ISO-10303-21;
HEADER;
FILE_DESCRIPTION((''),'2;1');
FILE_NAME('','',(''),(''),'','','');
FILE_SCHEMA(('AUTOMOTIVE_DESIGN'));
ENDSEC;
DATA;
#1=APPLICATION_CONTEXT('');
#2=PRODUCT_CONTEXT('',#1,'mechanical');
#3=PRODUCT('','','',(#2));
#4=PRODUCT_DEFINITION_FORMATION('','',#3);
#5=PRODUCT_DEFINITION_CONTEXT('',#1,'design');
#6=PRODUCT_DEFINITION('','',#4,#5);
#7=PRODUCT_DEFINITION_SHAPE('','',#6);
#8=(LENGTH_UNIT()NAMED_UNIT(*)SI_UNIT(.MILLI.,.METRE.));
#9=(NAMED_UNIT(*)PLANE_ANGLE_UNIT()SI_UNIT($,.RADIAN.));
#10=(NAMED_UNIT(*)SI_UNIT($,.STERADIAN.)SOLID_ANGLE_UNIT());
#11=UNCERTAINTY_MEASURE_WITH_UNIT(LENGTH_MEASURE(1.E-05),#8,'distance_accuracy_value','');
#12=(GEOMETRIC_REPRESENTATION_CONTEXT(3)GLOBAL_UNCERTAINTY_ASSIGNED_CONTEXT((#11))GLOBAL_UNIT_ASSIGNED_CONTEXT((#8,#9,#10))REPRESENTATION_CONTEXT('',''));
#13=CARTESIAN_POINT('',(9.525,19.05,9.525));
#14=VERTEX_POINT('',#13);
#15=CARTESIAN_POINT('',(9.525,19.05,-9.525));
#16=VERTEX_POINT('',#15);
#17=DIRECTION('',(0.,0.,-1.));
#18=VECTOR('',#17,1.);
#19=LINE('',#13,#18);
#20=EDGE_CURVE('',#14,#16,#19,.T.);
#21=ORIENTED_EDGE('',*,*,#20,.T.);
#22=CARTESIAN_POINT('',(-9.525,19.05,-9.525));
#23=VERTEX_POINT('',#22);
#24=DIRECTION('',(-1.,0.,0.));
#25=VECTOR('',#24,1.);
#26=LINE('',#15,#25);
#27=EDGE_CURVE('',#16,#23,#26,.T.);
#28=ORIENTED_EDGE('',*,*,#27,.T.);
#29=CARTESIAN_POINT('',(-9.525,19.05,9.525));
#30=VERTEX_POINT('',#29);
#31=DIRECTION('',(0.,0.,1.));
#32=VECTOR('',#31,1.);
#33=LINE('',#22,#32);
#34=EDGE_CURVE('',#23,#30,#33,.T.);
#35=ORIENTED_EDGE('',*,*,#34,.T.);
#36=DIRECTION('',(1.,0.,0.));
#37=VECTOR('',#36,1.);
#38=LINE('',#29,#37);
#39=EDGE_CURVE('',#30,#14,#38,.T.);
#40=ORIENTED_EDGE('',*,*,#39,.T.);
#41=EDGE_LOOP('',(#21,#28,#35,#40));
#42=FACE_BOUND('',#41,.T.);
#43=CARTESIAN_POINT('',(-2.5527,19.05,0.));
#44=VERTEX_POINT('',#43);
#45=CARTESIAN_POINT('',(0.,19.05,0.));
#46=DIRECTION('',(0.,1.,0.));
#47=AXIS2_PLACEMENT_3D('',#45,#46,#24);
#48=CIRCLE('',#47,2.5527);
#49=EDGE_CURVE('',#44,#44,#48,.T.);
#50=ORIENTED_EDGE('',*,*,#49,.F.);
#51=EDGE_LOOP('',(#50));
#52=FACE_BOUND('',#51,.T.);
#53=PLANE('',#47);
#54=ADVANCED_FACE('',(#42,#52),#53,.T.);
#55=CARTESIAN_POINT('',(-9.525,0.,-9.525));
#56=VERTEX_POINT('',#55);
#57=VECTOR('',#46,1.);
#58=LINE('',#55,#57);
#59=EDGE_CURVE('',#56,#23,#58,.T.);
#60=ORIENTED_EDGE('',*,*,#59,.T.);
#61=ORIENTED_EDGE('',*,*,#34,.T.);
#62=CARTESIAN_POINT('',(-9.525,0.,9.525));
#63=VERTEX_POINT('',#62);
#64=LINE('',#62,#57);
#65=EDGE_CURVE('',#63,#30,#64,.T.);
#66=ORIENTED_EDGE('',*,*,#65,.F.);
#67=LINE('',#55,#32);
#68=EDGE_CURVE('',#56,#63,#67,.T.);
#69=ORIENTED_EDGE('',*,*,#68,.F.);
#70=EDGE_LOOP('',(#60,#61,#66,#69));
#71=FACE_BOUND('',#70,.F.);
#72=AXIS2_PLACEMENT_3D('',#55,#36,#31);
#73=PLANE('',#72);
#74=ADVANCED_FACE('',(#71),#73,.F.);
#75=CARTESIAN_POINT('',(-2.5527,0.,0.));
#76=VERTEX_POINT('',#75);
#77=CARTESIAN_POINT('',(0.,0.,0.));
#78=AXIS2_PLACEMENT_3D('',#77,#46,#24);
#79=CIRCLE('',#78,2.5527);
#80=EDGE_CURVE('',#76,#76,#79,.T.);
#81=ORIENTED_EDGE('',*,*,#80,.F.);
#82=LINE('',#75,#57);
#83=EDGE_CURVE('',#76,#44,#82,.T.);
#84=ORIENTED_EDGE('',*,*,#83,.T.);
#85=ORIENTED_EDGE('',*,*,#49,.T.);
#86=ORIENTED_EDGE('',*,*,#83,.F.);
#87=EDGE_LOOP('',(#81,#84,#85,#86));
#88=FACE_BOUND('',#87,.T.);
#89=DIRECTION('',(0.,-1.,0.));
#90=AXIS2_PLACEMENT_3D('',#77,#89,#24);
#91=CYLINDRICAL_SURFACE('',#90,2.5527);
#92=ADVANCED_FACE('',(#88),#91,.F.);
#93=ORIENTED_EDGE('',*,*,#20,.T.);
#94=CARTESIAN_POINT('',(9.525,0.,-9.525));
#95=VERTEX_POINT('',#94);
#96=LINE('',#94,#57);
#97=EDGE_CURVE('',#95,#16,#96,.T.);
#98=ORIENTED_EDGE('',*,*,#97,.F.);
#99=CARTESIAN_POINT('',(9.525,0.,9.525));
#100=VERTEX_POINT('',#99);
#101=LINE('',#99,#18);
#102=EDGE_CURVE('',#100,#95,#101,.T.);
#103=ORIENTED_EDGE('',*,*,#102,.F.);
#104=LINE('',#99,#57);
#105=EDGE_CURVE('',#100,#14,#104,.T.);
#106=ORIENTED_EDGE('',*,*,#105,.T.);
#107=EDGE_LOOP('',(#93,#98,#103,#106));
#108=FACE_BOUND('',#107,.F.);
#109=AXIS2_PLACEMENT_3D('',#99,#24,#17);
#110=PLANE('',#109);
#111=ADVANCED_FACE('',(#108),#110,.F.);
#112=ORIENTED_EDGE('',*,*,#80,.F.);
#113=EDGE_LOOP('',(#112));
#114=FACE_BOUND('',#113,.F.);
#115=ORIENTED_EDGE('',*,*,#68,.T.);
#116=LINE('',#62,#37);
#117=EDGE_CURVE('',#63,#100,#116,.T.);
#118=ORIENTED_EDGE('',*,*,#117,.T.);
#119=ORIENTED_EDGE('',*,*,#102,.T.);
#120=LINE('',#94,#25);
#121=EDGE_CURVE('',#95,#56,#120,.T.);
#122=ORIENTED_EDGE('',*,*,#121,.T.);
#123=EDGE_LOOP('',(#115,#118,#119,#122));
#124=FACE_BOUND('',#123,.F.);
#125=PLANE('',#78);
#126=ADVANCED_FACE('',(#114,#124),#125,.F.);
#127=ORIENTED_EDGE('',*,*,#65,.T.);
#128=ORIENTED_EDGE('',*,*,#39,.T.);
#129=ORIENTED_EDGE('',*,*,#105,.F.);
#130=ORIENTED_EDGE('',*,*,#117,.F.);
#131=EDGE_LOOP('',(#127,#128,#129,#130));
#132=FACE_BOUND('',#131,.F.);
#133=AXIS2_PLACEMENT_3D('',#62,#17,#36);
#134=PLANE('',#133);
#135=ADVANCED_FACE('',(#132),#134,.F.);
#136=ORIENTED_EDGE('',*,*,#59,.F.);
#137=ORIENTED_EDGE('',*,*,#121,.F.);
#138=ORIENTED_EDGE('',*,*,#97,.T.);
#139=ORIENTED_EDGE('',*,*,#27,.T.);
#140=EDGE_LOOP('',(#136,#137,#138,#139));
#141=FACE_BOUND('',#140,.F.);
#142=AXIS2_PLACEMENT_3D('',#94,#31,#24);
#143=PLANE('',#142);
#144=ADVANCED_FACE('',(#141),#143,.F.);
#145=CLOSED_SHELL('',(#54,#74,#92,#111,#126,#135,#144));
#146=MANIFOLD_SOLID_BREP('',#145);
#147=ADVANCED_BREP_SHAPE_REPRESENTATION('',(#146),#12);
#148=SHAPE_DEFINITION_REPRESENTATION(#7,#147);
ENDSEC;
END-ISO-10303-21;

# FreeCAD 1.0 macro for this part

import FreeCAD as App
import Part
import Sketcher
from FreeCAD import Vector
Q = App.Units.Quantity

doc = App.newDocument("Part")
body = doc.addObject("PartDesign::Body", "Body")

sketch1 = body.newObject("Sketcher::SketchObject", "Sketch")
sketch1.AttachmentSupport = (doc.getObject("XZ_Plane"), [""])
sketch1.MapMode = "FlatFace"
sketch1.addGeometry([
    Part.LineSegment(Vector(9.525, 9.525, 0), Vector(9.525, -9.525, 0)),
    Part.LineSegment(Vector(9.525, -9.525, 0), Vector(-9.525, -9.525, 0)),
    Part.LineSegment(Vector(-9.525, -9.525, 0), Vector(-9.525, 9.525, 0)),
    Part.LineSegment(Vector(-9.525, 9.525, 0), Vector(9.525, 9.525, 0)),
    Part.Circle(Vector(0, 0, 0), Vector(0, 0, 1), 2.5527),
], False)
sketch1.addConstraint([
    Sketcher.Constraint("Coincident", 0, 2, 1, 1),
    Sketcher.Constraint("Coincident", 1, 2, 2, 1),
    Sketcher.Constraint("Coincident", 2, 2, 3, 1),
    Sketcher.Constraint("Coincident", 3, 2, 0, 1),
    Sketcher.Constraint("Vertical", 0),
    Sketcher.Constraint("Horizontal", 1),
    Sketcher.Constraint("Vertical", 2),
    Sketcher.Constraint("Horizontal", 3),
    Sketcher.Constraint("Coincident", 4, 3, -1, 1),
    Sketcher.Constraint("Symmetric", 0, 2, 2, 2, -1, 1),
    Sketcher.Constraint("Equal", 3, 0),
    Sketcher.Constraint("Diameter", 4, Q("0.201 in")),
    Sketcher.Constraint("DistanceX", 1, 2, 1, 1, Q("0.75 in")),
])
pad1 = body.newObject("PartDesign::Pad", "Pad")
pad1.Profile = sketch1
pad1.Length = Q("0.75 in")
pad1.Reversed = True

doc.recompute()
